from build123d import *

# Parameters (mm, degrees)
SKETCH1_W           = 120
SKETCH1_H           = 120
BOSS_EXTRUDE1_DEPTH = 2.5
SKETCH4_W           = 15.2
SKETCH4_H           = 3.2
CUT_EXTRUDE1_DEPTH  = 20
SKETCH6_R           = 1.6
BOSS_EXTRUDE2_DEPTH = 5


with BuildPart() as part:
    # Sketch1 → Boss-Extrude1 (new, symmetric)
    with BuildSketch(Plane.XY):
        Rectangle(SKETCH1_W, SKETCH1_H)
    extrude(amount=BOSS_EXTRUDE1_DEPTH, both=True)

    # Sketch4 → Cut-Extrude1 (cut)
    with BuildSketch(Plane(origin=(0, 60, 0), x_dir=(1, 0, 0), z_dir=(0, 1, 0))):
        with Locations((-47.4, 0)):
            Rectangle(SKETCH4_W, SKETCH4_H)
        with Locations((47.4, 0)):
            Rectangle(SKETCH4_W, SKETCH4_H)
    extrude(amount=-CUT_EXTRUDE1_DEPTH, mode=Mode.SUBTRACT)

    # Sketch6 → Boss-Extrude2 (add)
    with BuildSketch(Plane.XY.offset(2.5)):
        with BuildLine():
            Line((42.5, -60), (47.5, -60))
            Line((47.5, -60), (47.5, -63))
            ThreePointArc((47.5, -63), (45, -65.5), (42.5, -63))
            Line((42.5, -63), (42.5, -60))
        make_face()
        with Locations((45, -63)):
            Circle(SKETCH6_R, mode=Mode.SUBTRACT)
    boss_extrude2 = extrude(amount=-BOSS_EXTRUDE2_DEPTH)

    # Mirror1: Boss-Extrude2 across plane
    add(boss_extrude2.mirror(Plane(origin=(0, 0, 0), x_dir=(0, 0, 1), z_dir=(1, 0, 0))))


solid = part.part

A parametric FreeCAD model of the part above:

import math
import FreeCAD as App
import Part
import Sketcher

V = App.Vector


def add_polygon(sketch, points):
    """Adds a closed chain of lines whose ends are joined by coincident constraints."""
    first, n = sketch.GeometryCount, len(points)
    for a, b in zip(points, points[1:] + points[:1]):
        sketch.addGeometry(Part.LineSegment(App.Vector(*a, 0), App.Vector(*b, 0)), False)
    for i in range(n):
        sketch.addConstraint(Sketcher.Constraint("Coincident", first + i, 2, first + (i + 1) % n, 1))

doc = App.newDocument("Part")
body = doc.addObject("PartDesign::Body", "Body")

# Sketch on XY plane
sketch1 = body.newObject("Sketcher::SketchObject", "Sketch")
sketch1.AttachmentSupport = (doc.getObject("XY_Plane"), [""])
sketch1.MapMode = "FlatFace"
add_polygon(sketch1, [(-60, 60), (-60, -60), (60, -60), (60, 60)])  # lines 0-3
sketch1.addConstraint(Sketcher.Constraint("Vertical", 0))
sketch1.addConstraint(Sketcher.Constraint("Horizontal", 1))
sketch1.addConstraint(Sketcher.Constraint("Vertical", 2))
sketch1.addConstraint(Sketcher.Constraint("Horizontal", 3))
sketch1.addConstraint(Sketcher.Constraint("Symmetric", 0, 2, 2, 2, -1, 1))
sketch1.addConstraint(Sketcher.Constraint("Equal", 3, 0))
sketch1.addConstraint(Sketcher.Constraint("DistanceX", 1, 1, 1, 2, 120.0))
pad1 = body.newObject("PartDesign::Pad", "Pad")
pad1.Profile = sketch1
pad1.Length = 5
pad1.Midplane = True

# Sketch on XZ plane
sketch2 = body.newObject("Sketcher::SketchObject", "Sketch001")
sketch2.AttachmentSupport = (doc.getObject("XZ_Plane"), [""])
sketch2.MapMode = "FlatFace"
sketch2.AttachmentOffset = App.Placement(V(0, 0, -60), App.Rotation())
add_polygon(sketch2, [(-55, -1.6), (-55, 1.6), (-39.8, 1.6), (-39.8, -1.6)])  # lines 0-3
add_polygon(sketch2, [(39.8, -1.6), (39.8, 1.6), (55, 1.6), (55, -1.6)])  # lines 4-7
sketch2.addConstraint(Sketcher.Constraint("Vertical", 0))
sketch2.addConstraint(Sketcher.Constraint("Horizontal", 1))
sketch2.addConstraint(Sketcher.Constraint("Vertical", 2))
sketch2.addConstraint(Sketcher.Constraint("Horizontal", 3))
sketch2.addConstraint(Sketcher.Constraint("Vertical", 4))
sketch2.addConstraint(Sketcher.Constraint("Horizontal", 5))
sketch2.addConstraint(Sketcher.Constraint("Vertical", 6))
sketch2.addConstraint(Sketcher.Constraint("Horizontal", 7))
sketch2.addConstraint(Sketcher.Constraint("Symmetric", 2, 2, 4, 2, -1, 1))
sketch2.addConstraint(Sketcher.Constraint("Symmetric", 0, 2, 6, 2, -1, 1))
sketch2.addConstraint(Sketcher.Constraint("Horizontal", 1, 2, 4, 2))
sketch2.addConstraint(Sketcher.Constraint("DistanceX", 1, 1, 1, 2, 15.2))
sketch2.addConstraint(Sketcher.Constraint("DistanceY", 0, 1, 0, 2, 3.2))
sketch2.addConstraint(Sketcher.Constraint("DistanceX", 0, 2, -1, 1, 55.0))
pocket1 = body.newObject("PartDesign::Pocket", "Pocket")
pocket1.Profile = sketch2
pocket1.Length = 20
pocket1.Reversed = True

# Sketch on XY plane
sketch3 = body.newObject("Sketcher::SketchObject", "Sketch002")
sketch3.AttachmentSupport = (doc.getObject("XY_Plane"), [""])
sketch3.MapMode = "FlatFace"
sketch3.AttachmentOffset = App.Placement(V(0, 0, 2.5), App.Rotation())
sketch3.addGeometry(Part.LineSegment(V(47.5, -60, 0), V(42.5, -60, 0)), False)
sketch3.addGeometry(Part.LineSegment(V(42.5, -60, 0), V(42.5, -63, 0)), False)
sketch3.addGeometry(Part.ArcOfCircle(Part.Circle(V(45, -63, 0), V(0, 0, 1), 2.5), math.radians(180), math.radians(360)), False)
sketch3.addGeometry(Part.LineSegment(V(47.5, -63, 0), V(47.5, -60, 0)), False)
sketch3.addGeometry(Part.Circle(V(45, -63, 0), V(0, 0, 1), 1.6), False)
sketch3.addConstraint(Sketcher.Constraint("Coincident", 0, 2, 1, 1))
sketch3.addConstraint(Sketcher.Constraint("Tangent", 1, 2, 2, 1))
sketch3.addConstraint(Sketcher.Constraint("Tangent", 2, 2, 3, 1))
sketch3.addConstraint(Sketcher.Constraint("Coincident", 3, 2, 0, 1))
sketch3.addConstraint(Sketcher.Constraint("Horizontal", 0))
sketch3.addConstraint(Sketcher.Constraint("Vertical", 1))
sketch3.addConstraint(Sketcher.Constraint("Vertical", 3))
sketch3.addConstraint(Sketcher.Constraint("Coincident", 4, 3, 2, 3))
sketch3.addConstraint(Sketcher.Constraint("Diameter", 4, 3.2))
sketch3.addConstraint(Sketcher.Constraint("Radius", 2, 2.5))
sketch3.addConstraint(Sketcher.Constraint("DistanceY", 1, 2, 1, 1, 3.0))
sketch3.addConstraint(Sketcher.Constraint("DistanceX", -1, 1, 2, 3, 45.0))
sketch3.addConstraint(Sketcher.Constraint("DistanceY", 2, 3, -1, 1, 63.0))
pad2 = body.newObject("PartDesign::Pad", "Pad001")
pad2.Profile = sketch3
pad2.Length = 5
pad2.Reversed = True
doc.recompute()

mirrored = body.newObject("PartDesign::Mirrored", "Mirrored")
mirrored.Originals = [pad2]
mirrored.MirrorPlane = (doc.getObject("YZ_Plane"), [""])
body.Tip = mirrored

doc.recompute()
